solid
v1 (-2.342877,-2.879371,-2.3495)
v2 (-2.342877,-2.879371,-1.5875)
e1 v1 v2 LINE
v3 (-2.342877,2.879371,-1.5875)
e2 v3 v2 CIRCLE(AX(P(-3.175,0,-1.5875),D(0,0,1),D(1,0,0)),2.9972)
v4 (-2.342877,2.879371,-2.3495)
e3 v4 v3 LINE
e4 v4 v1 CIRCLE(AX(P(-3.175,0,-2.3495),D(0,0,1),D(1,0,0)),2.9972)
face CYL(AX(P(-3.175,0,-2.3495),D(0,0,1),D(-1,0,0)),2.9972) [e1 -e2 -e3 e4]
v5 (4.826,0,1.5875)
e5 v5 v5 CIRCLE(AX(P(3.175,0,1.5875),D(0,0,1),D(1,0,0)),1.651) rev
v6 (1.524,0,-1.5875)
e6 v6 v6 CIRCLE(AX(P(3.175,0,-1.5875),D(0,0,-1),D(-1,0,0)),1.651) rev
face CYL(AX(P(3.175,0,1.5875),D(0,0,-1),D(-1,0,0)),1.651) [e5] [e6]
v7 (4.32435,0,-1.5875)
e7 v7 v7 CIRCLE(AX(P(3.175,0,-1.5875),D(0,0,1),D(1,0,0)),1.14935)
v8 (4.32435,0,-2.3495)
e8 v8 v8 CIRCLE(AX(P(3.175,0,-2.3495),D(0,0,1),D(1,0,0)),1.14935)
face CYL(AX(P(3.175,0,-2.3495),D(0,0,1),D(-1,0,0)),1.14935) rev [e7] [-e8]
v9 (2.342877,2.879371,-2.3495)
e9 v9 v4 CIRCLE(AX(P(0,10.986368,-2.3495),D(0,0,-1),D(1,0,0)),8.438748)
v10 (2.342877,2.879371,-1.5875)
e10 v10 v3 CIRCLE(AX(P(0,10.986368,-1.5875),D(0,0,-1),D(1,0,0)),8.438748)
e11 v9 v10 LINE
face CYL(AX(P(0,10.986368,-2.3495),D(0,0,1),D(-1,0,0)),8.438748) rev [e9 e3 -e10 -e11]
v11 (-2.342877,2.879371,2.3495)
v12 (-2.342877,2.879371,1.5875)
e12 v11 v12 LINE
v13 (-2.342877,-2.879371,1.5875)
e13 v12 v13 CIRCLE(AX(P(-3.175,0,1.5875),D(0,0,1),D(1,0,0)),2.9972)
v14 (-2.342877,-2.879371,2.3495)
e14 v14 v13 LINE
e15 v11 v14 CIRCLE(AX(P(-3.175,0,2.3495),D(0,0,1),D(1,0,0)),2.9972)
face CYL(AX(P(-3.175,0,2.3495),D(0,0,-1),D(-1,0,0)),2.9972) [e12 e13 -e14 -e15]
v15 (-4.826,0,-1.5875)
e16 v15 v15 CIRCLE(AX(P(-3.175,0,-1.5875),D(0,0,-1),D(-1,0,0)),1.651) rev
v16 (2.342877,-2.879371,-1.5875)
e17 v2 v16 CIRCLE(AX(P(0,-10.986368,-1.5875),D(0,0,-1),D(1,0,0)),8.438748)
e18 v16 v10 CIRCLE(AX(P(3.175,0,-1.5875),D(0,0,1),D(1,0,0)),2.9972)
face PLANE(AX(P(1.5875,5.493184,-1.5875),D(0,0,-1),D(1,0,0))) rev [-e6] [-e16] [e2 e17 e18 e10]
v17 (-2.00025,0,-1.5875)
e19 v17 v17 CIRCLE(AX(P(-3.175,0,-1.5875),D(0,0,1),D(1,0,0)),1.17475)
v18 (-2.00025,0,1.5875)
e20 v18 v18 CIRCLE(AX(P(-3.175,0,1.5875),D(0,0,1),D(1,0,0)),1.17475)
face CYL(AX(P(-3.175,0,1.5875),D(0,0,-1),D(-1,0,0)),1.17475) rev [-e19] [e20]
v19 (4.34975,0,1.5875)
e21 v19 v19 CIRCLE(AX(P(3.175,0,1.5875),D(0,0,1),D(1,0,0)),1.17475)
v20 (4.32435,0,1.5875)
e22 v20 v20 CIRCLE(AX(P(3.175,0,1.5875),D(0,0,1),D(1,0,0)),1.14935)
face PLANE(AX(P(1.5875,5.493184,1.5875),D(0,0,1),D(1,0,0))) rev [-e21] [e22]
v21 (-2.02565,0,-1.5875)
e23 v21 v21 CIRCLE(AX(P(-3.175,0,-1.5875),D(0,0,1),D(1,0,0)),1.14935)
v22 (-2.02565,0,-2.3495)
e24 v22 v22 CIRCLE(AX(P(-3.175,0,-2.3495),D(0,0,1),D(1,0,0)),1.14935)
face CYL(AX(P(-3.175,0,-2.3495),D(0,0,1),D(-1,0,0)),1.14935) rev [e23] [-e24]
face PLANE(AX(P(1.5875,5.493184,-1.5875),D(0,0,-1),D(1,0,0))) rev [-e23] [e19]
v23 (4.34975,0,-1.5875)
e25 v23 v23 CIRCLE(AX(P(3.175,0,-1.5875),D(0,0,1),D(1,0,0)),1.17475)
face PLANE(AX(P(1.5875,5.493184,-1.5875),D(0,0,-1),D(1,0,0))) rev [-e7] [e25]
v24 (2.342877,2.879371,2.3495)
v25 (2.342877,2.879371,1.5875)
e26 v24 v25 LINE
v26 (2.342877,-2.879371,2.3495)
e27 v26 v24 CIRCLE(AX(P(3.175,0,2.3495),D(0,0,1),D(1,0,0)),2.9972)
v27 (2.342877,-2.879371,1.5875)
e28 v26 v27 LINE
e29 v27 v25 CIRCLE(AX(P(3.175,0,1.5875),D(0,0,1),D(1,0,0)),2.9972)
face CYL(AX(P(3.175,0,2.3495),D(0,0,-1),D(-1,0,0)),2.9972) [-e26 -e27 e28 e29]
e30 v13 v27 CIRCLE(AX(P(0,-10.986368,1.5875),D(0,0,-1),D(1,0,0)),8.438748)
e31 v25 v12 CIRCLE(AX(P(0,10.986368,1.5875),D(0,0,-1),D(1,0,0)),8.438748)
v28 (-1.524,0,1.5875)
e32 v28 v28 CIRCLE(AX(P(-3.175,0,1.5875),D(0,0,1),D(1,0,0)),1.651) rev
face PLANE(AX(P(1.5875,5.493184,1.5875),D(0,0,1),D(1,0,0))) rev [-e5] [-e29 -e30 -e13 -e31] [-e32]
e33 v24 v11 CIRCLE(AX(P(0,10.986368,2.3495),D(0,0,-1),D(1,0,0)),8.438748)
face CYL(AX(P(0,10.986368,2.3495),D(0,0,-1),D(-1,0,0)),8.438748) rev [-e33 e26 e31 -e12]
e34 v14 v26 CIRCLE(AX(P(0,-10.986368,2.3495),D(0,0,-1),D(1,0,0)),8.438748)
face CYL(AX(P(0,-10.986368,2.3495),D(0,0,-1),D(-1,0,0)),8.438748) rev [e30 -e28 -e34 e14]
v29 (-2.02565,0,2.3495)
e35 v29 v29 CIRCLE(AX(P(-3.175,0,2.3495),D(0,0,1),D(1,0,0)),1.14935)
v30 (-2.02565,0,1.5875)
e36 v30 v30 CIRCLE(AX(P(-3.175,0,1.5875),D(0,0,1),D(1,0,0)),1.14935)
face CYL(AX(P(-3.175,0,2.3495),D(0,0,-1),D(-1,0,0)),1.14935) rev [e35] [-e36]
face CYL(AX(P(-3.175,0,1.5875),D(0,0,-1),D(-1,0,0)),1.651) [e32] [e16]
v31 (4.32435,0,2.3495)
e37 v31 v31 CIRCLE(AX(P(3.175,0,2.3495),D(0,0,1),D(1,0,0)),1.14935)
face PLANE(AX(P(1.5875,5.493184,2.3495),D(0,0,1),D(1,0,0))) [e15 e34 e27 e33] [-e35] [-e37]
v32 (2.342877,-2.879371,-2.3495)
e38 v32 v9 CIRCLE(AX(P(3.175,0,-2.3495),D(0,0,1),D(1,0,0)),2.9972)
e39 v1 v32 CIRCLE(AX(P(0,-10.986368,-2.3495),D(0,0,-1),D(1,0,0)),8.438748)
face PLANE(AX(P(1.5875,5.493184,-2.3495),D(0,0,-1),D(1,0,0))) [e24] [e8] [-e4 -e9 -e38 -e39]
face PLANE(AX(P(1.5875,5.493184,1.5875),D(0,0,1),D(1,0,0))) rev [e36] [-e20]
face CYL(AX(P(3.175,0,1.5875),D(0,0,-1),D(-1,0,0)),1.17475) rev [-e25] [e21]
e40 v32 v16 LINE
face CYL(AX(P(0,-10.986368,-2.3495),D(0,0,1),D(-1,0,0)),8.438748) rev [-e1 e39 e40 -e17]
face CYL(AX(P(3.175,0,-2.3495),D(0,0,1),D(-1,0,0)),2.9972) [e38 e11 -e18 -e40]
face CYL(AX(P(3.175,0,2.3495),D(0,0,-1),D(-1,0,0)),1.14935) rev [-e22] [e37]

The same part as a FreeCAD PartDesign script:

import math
import FreeCAD as App
import Part
import Sketcher

V = App.Vector
Q = App.Units.Quantity

doc = App.newDocument("Part")
params = doc.addObject("Spreadsheet::Sheet", "Params")
for row, (alias, value) in enumerate([
    ("sketch1_diameter", "0.13 in"),
    ("pad1_length", "0.125 in"),
    ("sketch2_diameter", "0.13 in"),
    ("pad2_length", "0.125 in"),
    ("sketch3_radius", "0.118 in"),
    ("pad3_length", "0.03 in"),
], start=1):
    params.set(f"A{row}", alias)
    params.set(f"B{row}", "=" + value)
    params.setAlias(f"B{row}", alias)

body = doc.addObject("PartDesign::Body", "Body")

sketch1 = body.newObject("Sketcher::SketchObject", "Sketch")
sketch1.AttachmentSupport = (doc.getObject("XY_Plane"), [""])
sketch1.MapMode = "FlatFace"
sketch1.addGeometry([
    Part.Circle(V(-3.2, 0, 0), V(0, 0, 1), 1.7),
    Part.Circle(V(-3.2, 0, 0), V(0, 0, 1), 1.2),
], False)
sketch1.addConstraint([
    Sketcher.Constraint("Coincident", 1, 3, 0, 3),
    Sketcher.Constraint("PointOnObject", 0, 3, -1),
    Sketcher.Constraint("Diameter", 0, Q("0.13 in")),
    Sketcher.Constraint("Diameter", 1, Q("0.0925 in")),
    Sketcher.Constraint("DistanceX", 0, 3, -1, 1, Q("0.125 in")),
])
sketch1.setExpression("Constraints[2]", "Params.sketch1_diameter")
pad1 = body.newObject("PartDesign::Pad", "Pad")
pad1.Profile = sketch1
pad1.setExpression("Length", "Params.pad1_length")
pad1.Midplane = True
body2 = doc.addObject("PartDesign::Body", "Body001")

sketch2 = body2.newObject("Sketcher::SketchObject", "Sketch001")
sketch2.AttachmentSupport = (doc.getObject("XY_Plane001"), [""])
sketch2.MapMode = "FlatFace"
sketch2.addGeometry([
    Part.Circle(V(3.2, 0, 0), V(0, 0, 1), 1.7),
    Part.Circle(V(3.2, 0, 0), V(0, 0, 1), 1.2),
], False)
sketch2.addConstraint([
    Sketcher.Constraint("Coincident", 1, 3, 0, 3),
    Sketcher.Constraint("PointOnObject", 0, 3, -1),
    Sketcher.Constraint("Diameter", 0, Q("0.13 in")),
    Sketcher.Constraint("Diameter", 1, Q("0.0925 in")),
    Sketcher.Constraint("DistanceX", -1, 1, 0, 3, Q("0.125 in")),
])
sketch2.setExpression("Constraints[2]", "Params.sketch2_diameter")
pad2 = body2.newObject("PartDesign::Pad", "Pad001")
pad2.Profile = sketch2
pad2.setExpression("Length", "Params.pad2_length")
pad2.Midplane = True
body3 = doc.addObject("PartDesign::Body", "Body002")

sketch3 = body3.newObject("Sketcher::SketchObject", "Sketch002")
sketch3.AttachmentSupport = (doc.getObject("XY_Plane002"), [""])
sketch3.MapMode = "FlatFace"
sketch3.AttachmentOffset = App.Placement(V(0, 0, 0.0625 * 25.4), App.Rotation())
sketch3.addGeometry([
    Part.ArcOfCircle(Part.Circle(V(-3.2, 0, 0), V(0, 0, 1), 3), math.radians(74), math.radians(286)),
    Part.ArcOfCircle(Part.Circle(V(0, -11, 0), V(0, 0, 1), 8.4), math.radians(74), math.radians(106)),
    Part.ArcOfCircle(Part.Circle(V(3.2, 0, 0), V(0, 0, 1), 3), math.radians(-106), math.radians(106)),
    Part.ArcOfCircle(Part.Circle(V(0, 11, 0), V(0, 0, 1), 8.4), math.radians(-106), math.radians(-74)),
    Part.Circle(V(-3.2, 0, 0), V(0, 0, 1), 1.1),
    Part.Circle(V(3.2, 0, 0), V(0, 0, 1), 1.1),
], False)
sketch3.addConstraint([
    Sketcher.Constraint("Tangent", 0, 2, 1, 2),
    Sketcher.Constraint("Tangent", 1, 1, 2, 1),
    Sketcher.Constraint("Tangent", 2, 2, 3, 2),
    Sketcher.Constraint("Tangent", 3, 1, 0, 1),
    Sketcher.Constraint("Coincident", 4, 3, 0, 3),
    Sketcher.Constraint("Coincident", 5, 3, 2, 3),
    Sketcher.Constraint("Equal", 0, 2),
    Sketcher.Constraint("Equal", 1, 3),
    Sketcher.Constraint("Equal", 4, 5),
    Sketcher.Constraint("Symmetric", 0, 3, 2, 3, -1, 1),
    Sketcher.Constraint("PointOnObject", 0, 3, -1),
    Sketcher.Constraint("Radius", 0, Q("0.118 in")),
    Sketcher.Constraint("Diameter", 4, Q("0.0905 in")),
    Sketcher.Constraint("DistanceX", 0, 3, 2, 3, Q("0.25 in")),
    Sketcher.Constraint("Radius", 1, 8.438748),
])
sketch3.setExpression("Constraints[11]", "Params.sketch3_radius")
pad3 = body3.newObject("PartDesign::Pad", "Pad002")
pad3.Profile = sketch3
pad3.setExpression("Length", "Params.pad3_length")
body4 = doc.addObject("PartDesign::Body", "Body003")
body4.AllowCompound = True
doc.recompute()

mirroring = doc.addObject("Part::Mirroring", "Mirroring")
mirroring.Source = body3
mirroring.Base = V(0, 0, 0)
mirroring.Normal = V(0, 0, 1)
body4.BaseFeature = mirroring
doc.recompute()

boolean = body4.newObject("PartDesign::Boolean", "Boolean")
boolean.Type = "Fuse"
boolean.addObjects([body3])
doc.recompute()

boolean2 = body4.newObject("PartDesign::Boolean", "Boolean001")
boolean2.Type = "Fuse"
boolean2.addObjects([body2])
doc.recompute()

boolean3 = body4.newObject("PartDesign::Boolean", "Boolean002")
boolean3.Type = "Fuse"
boolean3.addObjects([body])
mirroring.Visibility = False

doc.recompute()
